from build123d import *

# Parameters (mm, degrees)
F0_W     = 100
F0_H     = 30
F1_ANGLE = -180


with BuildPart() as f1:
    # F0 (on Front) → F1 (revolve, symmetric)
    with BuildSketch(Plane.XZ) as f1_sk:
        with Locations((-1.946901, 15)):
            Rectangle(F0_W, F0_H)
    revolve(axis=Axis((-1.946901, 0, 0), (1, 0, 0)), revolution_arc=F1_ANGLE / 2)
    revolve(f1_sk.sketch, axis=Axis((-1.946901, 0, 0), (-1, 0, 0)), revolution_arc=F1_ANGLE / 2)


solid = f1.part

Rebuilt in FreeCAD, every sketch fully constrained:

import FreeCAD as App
import Part
import Sketcher


def add_polygon(sketch, points):
    """Adds a closed chain of lines whose ends are joined by coincident constraints."""
    first, n = sketch.GeometryCount, len(points)
    for a, b in zip(points, points[1:] + points[:1]):
        sketch.addGeometry(Part.LineSegment(App.Vector(*a, 0), App.Vector(*b, 0)), False)
    for i in range(n):
        sketch.addConstraint(Sketcher.Constraint("Coincident", first + i, 2, first + (i + 1) % n, 1))

doc = App.newDocument("Part")
params = doc.addObject("Spreadsheet::Sheet", "Params")
for row, (alias, value) in enumerate([
    ("sketch1_width", "100 mm"),
    ("sketch1_height", "30 mm"),
    ("revolution_angle", "90 deg"),
    ("sketch2_width", "100 mm"),
    ("sketch2_height", "30 mm"),
    ("revolution2_angle", "90 deg"),
], start=1):
    params.set(f"A{row}", alias)
    params.set(f"B{row}", "=" + value)
    params.setAlias(f"B{row}", alias)

body = doc.addObject("PartDesign::Body", "Body")

sketch1 = body.newObject("Sketcher::SketchObject", "Sketch")
sketch1.AttachmentSupport = (doc.getObject("XZ_Plane"), [""])
sketch1.MapMode = "FlatFace"
add_polygon(sketch1, [(-52, 30), (-52, 0), (48, 0), (48, 30)])
sketch1.addConstraint([
    Sketcher.Constraint("Vertical", 0),
    Sketcher.Constraint("Horizontal", 1),
    Sketcher.Constraint("Vertical", 2),
    Sketcher.Constraint("Horizontal", 3),
    Sketcher.Constraint("PointOnObject", 0, 2, -1),
    Sketcher.Constraint("DistanceX", 1, 1, 1, 2, 100.0),
    Sketcher.Constraint("DistanceY", 0, 2, 0, 1, 30.0),
    Sketcher.Constraint("DistanceX", 0, 2, -1, 1, 51.946901),
])
sketch1.setExpression("Constraints[9]", "Params.sketch1_width")
sketch1.setExpression("Constraints[10]", "Params.sketch1_height")
revolution = body.newObject("PartDesign::Revolution", "Revolution")
revolution.Profile = sketch1
revolution.ReferenceAxis = (sketch1, ["H_Axis"])
revolution.setExpression("Angle", "Params.revolution_angle")
revolution.Reversed = True

sketch2 = body.newObject("Sketcher::SketchObject", "Sketch001")
sketch2.AttachmentSupport = (doc.getObject("XZ_Plane"), [""])
sketch2.MapMode = "FlatFace"
add_polygon(sketch2, [(-52, 30), (-52, 0), (48, 0), (48, 30)])
sketch2.addConstraint([
    Sketcher.Constraint("Vertical", 0),
    Sketcher.Constraint("Horizontal", 1),
    Sketcher.Constraint("Vertical", 2),
    Sketcher.Constraint("Horizontal", 3),
    Sketcher.Constraint("PointOnObject", 0, 2, -1),
    Sketcher.Constraint("DistanceX", 1, 1, 1, 2, 100.0),
    Sketcher.Constraint("DistanceY", 0, 2, 0, 1, 30.0),
    Sketcher.Constraint("DistanceX", 0, 2, -1, 1, 51.946901),
])
sketch2.setExpression("Constraints[9]", "Params.sketch2_width")
sketch2.setExpression("Constraints[10]", "Params.sketch2_height")
revolution2 = body.newObject("PartDesign::Revolution", "Revolution001")
revolution2.Profile = sketch2
revolution2.ReferenceAxis = (sketch2, ["H_Axis"])
revolution2.setExpression("Angle", "Params.revolution2_angle")

doc.recompute()
